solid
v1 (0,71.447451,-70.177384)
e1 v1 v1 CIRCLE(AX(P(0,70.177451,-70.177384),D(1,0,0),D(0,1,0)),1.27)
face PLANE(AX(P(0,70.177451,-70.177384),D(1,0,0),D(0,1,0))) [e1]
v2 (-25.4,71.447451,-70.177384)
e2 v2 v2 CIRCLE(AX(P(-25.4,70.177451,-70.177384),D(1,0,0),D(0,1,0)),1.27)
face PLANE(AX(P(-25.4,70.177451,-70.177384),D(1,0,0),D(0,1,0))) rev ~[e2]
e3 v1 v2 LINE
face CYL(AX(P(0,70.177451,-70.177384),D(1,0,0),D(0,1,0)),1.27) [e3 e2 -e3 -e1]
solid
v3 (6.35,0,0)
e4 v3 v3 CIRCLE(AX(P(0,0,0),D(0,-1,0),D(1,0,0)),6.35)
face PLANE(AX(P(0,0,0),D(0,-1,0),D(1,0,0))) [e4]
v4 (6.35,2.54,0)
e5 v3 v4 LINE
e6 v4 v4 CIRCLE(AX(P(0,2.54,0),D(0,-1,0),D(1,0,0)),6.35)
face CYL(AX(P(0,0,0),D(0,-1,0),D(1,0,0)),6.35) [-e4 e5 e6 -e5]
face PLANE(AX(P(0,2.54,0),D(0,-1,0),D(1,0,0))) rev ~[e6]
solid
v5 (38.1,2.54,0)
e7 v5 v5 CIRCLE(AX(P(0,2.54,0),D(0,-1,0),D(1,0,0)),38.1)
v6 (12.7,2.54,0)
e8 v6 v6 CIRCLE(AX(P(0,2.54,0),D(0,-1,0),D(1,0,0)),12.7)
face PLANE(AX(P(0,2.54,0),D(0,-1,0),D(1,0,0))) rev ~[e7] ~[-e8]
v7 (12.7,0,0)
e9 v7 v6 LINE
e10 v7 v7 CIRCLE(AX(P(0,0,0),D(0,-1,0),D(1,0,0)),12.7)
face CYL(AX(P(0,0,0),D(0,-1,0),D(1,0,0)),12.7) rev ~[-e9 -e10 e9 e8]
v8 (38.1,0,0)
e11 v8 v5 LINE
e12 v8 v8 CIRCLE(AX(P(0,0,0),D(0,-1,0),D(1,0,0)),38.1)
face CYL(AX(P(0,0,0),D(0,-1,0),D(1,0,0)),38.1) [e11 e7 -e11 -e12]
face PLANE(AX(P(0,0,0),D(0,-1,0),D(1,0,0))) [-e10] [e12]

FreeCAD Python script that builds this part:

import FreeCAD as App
import Part
import Sketcher
from FreeCAD import Vector
Q = App.Units.Quantity

doc = App.newDocument("Part")
params = doc.addObject("Spreadsheet::Sheet", "Params")
for row, (alias, value) in enumerate([
    ("sketch1_diameter", "3 in"),
    ("sketch1_diameter2", "1 in"),
    ("sketch1_diameter3", "0.5 in"),
    ("pad1_length", "0.1 in"),
    ("sketch2_diameter", "0.1 in"),
    ("pad2_length", "1 in"),
], start=1):
    params.set(f"A{row}", alias)
    params.set(f"B{row}", "=" + value)
    params.setAlias(f"B{row}", alias)

body = doc.addObject("PartDesign::Body", "Body")
body.AllowCompound = True

# Sketch on XZ plane
sketch1 = doc.addObject("Sketcher::SketchObject", "Sketch")
body.addObject(sketch1)
sketch1.AttachmentSupport = (doc.XZ_Plane, [""])
sketch1.MapMode = "FlatFace"
sketch1.addGeometry([
    Part.Circle(Vector(0, 0, 0), Vector(0, 0, 1), 38.1),
    Part.Circle(Vector(0, 0, 0), Vector(0, 0, 1), 12.7),
    Part.Circle(Vector(0, 0, 0), Vector(0, 0, 1), 6.35),
], False)
sketch1.addConstraint([
    Sketcher.Constraint("Coincident", 0, 3, -1, 1),
    Sketcher.Constraint("Coincident", 1, 3, -1, 1),
    Sketcher.Constraint("Coincident", 2, 3, -1, 1),
    Sketcher.Constraint("Diameter", 0, Q("3 in")),
    Sketcher.Constraint("Diameter", 1, Q("1 in")),
    Sketcher.Constraint("Diameter", 2, Q("0.5 in")),
])
sketch1.setExpression("Constraints[3]", "Params.sketch1_diameter")
sketch1.setExpression("Constraints[4]", "Params.sketch1_diameter2")
sketch1.setExpression("Constraints[5]", "Params.sketch1_diameter3")
pad1 = doc.addObject("PartDesign::Pad", "Pad")
body.addObject(pad1)
pad1.Profile = sketch1
pad1.setExpression("Length", "Params.pad1_length")
pad1.Reversed = True
body2 = doc.addObject("PartDesign::Body", "Body001")

# Sketch on YZ plane
sketch2 = doc.addObject("Sketcher::SketchObject", "Sketch001")
body2.addObject(sketch2)
sketch2.AttachmentSupport = (doc.getObject("YZ_Plane001"), [""])
sketch2.MapMode = "FlatFace"
sketch2.addGeometry(Part.Circle(Vector(70.177451, -70.177384, 0), Vector(0, 0, 1), 1.27), False)
sketch2.addConstraint([
    Sketcher.Constraint("Diameter", 0, Q("0.1 in")),
    Sketcher.Constraint("DistanceX", -1, 1, 0, 3, 70.177451),
    Sketcher.Constraint("DistanceY", 0, 3, -1, 1, 70.177384),
])
sketch2.setExpression("Constraints[0]", "Params.sketch2_diameter")
pad2 = doc.addObject("PartDesign::Pad", "Pad001")
body2.addObject(pad2)
pad2.Profile = sketch2
pad2.setExpression("Length", "Params.pad2_length")
pad2.Reversed = True

doc.recompute()
